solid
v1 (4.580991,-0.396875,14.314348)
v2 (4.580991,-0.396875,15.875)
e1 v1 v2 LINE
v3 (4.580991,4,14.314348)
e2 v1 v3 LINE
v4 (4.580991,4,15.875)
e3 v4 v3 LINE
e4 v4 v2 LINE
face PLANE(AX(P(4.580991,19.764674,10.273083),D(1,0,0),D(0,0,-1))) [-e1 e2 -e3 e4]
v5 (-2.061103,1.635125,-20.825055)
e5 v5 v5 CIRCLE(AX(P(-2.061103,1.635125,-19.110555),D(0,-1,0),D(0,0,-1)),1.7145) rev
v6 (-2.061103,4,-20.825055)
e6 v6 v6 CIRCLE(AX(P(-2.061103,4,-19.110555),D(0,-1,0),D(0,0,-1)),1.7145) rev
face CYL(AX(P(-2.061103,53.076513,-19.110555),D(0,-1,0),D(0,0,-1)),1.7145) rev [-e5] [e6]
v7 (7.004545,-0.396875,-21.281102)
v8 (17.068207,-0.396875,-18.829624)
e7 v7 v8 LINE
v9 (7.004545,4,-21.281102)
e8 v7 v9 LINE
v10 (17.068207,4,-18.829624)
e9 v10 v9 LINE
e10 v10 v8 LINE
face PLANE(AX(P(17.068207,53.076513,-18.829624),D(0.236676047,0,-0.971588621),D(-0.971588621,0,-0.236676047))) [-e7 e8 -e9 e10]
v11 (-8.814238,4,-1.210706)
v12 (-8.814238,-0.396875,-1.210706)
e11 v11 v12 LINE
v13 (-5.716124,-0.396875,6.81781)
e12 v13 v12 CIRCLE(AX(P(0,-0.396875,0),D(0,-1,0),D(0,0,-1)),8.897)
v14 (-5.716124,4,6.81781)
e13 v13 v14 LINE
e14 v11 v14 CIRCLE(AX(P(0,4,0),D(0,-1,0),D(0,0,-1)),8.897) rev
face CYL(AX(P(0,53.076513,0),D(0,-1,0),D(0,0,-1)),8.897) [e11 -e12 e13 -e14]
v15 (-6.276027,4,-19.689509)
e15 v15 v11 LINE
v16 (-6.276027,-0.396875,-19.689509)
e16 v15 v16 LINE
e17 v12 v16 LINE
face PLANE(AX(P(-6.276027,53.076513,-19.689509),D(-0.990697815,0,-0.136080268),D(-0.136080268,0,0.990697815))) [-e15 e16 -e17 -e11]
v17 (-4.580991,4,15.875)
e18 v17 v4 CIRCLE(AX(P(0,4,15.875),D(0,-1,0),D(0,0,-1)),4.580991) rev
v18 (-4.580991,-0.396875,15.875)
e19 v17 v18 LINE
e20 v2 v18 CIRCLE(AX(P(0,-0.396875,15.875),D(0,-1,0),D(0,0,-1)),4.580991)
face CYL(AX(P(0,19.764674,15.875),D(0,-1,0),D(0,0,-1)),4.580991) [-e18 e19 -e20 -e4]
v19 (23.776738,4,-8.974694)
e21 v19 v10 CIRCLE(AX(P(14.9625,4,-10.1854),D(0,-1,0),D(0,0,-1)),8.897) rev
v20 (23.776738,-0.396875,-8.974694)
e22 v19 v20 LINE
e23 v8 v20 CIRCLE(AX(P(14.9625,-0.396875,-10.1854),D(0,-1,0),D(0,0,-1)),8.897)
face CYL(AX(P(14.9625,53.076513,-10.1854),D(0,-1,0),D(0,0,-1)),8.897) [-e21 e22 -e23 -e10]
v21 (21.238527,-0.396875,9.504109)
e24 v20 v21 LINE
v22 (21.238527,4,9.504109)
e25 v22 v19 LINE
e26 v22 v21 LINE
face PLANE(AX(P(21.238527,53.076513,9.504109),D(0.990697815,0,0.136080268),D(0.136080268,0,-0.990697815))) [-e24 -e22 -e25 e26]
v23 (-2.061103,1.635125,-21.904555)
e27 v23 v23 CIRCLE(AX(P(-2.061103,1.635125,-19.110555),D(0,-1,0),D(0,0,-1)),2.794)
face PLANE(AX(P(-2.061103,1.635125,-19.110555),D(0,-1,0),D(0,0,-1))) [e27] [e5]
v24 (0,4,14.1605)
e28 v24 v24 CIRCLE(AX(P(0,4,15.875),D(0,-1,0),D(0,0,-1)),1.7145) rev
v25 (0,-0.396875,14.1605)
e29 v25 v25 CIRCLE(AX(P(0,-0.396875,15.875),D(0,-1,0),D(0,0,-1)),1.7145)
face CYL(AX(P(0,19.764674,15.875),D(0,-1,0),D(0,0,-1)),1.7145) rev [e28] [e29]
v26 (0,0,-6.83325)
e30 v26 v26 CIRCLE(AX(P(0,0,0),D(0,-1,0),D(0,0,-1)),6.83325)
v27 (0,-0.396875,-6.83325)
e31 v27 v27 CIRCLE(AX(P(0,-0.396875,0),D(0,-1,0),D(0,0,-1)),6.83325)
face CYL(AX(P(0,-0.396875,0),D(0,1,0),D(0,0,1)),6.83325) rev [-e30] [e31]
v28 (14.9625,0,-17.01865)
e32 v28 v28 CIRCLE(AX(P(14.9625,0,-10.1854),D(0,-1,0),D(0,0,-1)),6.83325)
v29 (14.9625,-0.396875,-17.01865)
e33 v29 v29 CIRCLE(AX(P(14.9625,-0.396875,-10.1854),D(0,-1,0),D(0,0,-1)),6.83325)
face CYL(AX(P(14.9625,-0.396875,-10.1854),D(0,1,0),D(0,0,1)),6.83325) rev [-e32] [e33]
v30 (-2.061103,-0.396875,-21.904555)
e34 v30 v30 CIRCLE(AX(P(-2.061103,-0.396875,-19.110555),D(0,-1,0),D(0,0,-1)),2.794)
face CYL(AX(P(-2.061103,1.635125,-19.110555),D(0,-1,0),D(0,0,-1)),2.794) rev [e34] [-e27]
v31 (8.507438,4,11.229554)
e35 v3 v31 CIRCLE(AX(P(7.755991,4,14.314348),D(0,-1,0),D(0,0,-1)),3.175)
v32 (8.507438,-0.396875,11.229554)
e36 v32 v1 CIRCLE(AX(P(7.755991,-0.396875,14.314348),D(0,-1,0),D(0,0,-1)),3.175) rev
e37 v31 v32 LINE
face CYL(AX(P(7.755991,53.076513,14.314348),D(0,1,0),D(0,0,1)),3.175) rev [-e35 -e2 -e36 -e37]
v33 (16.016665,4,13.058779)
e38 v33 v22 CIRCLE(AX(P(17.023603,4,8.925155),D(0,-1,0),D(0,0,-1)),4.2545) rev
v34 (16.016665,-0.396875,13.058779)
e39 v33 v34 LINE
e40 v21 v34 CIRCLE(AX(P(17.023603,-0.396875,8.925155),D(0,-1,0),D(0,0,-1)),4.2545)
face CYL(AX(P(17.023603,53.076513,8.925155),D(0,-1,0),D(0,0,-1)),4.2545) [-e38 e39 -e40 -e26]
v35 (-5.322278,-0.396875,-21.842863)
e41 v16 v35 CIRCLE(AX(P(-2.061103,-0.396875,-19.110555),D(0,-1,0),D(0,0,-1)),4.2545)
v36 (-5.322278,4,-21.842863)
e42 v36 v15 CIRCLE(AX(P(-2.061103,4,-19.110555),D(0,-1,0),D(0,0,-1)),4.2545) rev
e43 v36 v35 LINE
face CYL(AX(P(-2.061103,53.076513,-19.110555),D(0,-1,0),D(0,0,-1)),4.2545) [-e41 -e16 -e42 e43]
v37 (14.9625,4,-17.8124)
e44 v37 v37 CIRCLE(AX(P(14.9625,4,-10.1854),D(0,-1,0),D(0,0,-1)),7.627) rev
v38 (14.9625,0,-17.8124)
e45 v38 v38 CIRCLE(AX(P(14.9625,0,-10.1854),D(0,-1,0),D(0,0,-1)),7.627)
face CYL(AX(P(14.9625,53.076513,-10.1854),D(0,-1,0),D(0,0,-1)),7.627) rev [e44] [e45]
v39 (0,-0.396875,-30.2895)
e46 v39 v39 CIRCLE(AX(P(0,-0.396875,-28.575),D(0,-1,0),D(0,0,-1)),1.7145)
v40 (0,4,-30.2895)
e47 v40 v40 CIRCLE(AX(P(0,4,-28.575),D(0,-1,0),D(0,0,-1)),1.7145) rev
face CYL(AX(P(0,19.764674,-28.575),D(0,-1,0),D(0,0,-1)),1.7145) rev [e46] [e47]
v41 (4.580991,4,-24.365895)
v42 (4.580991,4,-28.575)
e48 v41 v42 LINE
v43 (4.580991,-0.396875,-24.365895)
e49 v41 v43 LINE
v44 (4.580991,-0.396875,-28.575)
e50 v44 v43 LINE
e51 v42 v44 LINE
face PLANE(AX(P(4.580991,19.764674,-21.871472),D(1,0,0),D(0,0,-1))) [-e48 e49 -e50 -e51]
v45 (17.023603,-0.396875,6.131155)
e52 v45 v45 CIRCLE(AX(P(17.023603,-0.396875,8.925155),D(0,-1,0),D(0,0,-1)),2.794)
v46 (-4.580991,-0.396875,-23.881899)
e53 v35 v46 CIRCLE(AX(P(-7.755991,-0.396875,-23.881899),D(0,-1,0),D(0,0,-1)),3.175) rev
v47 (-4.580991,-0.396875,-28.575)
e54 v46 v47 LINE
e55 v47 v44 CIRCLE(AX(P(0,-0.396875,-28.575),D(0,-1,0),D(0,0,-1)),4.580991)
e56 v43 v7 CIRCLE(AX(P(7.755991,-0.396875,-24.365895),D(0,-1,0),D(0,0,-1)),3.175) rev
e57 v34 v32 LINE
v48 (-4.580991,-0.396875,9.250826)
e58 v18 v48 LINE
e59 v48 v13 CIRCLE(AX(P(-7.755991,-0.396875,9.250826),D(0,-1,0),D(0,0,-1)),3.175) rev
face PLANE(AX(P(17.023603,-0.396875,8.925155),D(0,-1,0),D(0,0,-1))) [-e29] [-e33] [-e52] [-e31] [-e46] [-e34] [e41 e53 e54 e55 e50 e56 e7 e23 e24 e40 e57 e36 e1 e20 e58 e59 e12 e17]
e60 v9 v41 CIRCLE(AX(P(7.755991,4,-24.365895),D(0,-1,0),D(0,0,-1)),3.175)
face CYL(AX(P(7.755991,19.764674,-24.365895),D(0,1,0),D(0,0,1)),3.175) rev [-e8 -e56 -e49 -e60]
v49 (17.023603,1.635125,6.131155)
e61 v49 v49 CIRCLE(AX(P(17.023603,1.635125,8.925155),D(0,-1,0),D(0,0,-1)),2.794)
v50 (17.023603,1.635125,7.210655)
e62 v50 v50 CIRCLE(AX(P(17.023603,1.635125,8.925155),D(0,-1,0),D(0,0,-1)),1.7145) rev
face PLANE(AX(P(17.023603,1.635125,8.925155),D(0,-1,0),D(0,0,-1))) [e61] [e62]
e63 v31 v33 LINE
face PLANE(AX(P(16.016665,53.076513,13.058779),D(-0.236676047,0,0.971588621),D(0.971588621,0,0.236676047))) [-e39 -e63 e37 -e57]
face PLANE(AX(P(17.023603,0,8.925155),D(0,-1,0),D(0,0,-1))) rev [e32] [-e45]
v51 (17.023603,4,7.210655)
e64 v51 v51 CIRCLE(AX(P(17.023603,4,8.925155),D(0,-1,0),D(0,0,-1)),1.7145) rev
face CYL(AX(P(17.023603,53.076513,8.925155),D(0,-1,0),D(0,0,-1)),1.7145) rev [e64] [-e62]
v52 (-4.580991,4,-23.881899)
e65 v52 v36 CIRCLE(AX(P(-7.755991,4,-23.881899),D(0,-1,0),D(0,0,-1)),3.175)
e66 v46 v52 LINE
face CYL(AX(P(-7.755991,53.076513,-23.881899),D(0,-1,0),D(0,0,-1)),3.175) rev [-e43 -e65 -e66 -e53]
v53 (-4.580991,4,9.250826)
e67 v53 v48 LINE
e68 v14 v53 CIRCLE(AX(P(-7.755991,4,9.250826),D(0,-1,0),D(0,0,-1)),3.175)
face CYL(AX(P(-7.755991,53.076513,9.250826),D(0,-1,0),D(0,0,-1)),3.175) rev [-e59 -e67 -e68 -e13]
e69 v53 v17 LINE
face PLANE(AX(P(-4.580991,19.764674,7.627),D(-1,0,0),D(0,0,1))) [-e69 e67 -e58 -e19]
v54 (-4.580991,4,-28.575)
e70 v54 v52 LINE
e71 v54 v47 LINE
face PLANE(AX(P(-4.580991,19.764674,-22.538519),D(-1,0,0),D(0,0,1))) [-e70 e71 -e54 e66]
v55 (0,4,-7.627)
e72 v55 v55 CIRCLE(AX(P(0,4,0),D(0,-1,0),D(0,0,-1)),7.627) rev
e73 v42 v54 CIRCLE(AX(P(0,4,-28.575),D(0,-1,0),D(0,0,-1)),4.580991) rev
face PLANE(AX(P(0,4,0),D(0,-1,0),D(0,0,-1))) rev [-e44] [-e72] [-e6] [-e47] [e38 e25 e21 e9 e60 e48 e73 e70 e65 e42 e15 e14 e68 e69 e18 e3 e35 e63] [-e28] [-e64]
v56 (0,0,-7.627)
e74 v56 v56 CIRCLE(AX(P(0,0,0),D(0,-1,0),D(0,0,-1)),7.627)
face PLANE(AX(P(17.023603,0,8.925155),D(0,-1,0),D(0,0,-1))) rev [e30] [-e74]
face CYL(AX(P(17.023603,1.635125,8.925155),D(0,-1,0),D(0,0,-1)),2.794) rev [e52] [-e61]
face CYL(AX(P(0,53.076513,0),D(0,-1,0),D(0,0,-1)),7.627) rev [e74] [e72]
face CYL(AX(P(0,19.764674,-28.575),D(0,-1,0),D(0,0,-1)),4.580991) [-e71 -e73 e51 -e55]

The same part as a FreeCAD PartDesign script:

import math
import FreeCAD as App
import Part
import Sketcher
from FreeCAD import Vector
Q = App.Units.Quantity


def edges_at(feature, points):
    """Names of the edges that pass closest to the given points."""
    edges = feature.Shape.Edges
    near = lambda p: min(range(len(edges)), key=lambda i: edges[i].distToShape(Part.Vertex(*p))[0])
    return sorted({f"Edge{near(p) + 1}" for p in points})

doc = App.newDocument("Part")
body = doc.addObject("PartDesign::Body", "Body")

# Sketch on XZ plane
sketch1 = body.newObject("Sketcher::SketchObject", "Sketch")
sketch1.AttachmentSupport = (doc.getObject("XZ_Plane"), [""])
sketch1.MapMode = "FlatFace"
sketch1.addGeometry([
    Part.LineSegment(Vector(23.8, -9, 0), Vector(21.2, 9.5, 0)),  # 0
    Part.ArcOfCircle(Part.Circle(Vector(17, 8.9, 0), Vector(0, 0, 1), 4.3), math.radians(8), math.radians(104)),  # 1
    Part.LineSegment(Vector(16, 13.1, 0), Vector(-2.1, 8.6, 0)),  # 2
    Part.ArcOfCircle(Part.Circle(Vector(0, 0, 0), Vector(0, 0, 1), 8.9), math.radians(104), math.radians(188)),  # 3
    Part.LineSegment(Vector(-8.8, -1.2, 0), Vector(-6.3, -19.7, 0)),  # 4
    Part.ArcOfCircle(Part.Circle(Vector(-2.1, -19.1, 0), Vector(0, 0, 1), 4.3), math.radians(-172), math.radians(-76)),  # 5
    Part.LineSegment(Vector(-1.1, -23.2, 0), Vector(17.1, -18.8, 0)),  # 6
    Part.ArcOfCircle(Part.Circle(Vector(15, -10.2, 0), Vector(0, 0, 1), 8.9), math.radians(-76), math.radians(8)),  # 7
    Part.Circle(Vector(0, 0, 0), Vector(0, 0, 1), 7.6),  # 8
    Part.Circle(Vector(17, 8.9, 0), Vector(0, 0, 1), 1.7),  # 9
    Part.Circle(Vector(-2.1, -19.1, 0), Vector(0, 0, 1), 1.7),  # 10
    Part.Circle(Vector(15, -10.2, 0), Vector(0, 0, 1), 7.6),  # 11
], False)
sketch1.addConstraint([
    Sketcher.Constraint("Tangent", 0, 2, 1, 1),
    Sketcher.Constraint("Tangent", 1, 2, 2, 1),
    Sketcher.Constraint("Tangent", 2, 2, 3, 1),
    Sketcher.Constraint("Tangent", 3, 2, 4, 1),
    Sketcher.Constraint("Tangent", 4, 2, 5, 1),
    Sketcher.Constraint("Tangent", 5, 2, 6, 1),
    Sketcher.Constraint("Tangent", 6, 2, 7, 1),
    Sketcher.Constraint("Tangent", 7, 2, 0, 1),
    Sketcher.Constraint("Coincident", 3, 3, -1, 1),
    Sketcher.Constraint("Coincident", 8, 3, -1, 1),
    Sketcher.Constraint("Coincident", 9, 3, 1, 3),
    Sketcher.Constraint("Coincident", 10, 3, 5, 3),
    Sketcher.Constraint("Coincident", 11, 3, 7, 3),
    Sketcher.Constraint("Equal", 1, 5),
    Sketcher.Constraint("Equal", 3, 7),
    Sketcher.Constraint("Equal", 9, 10),
    Sketcher.Constraint("Equal", 8, 11),
    Sketcher.Constraint("Parallel", 0, 4),
    Sketcher.Constraint("Parallel", 2, 6),
    Sketcher.Constraint("Equal", 0, 2),
    Sketcher.Constraint("Diameter", 9, Q("0.135 in")),
    Sketcher.Constraint("Radius", 1, Q("0.1675 in")),
    Sketcher.Constraint("Diameter", 8, 15.254),
    Sketcher.Constraint("Radius", 3, 8.897),
    Sketcher.Constraint("DistanceY", 7, 3, -1, 1, Q("0.401 in")),
    Sketcher.Constraint("DistanceX", -1, 1, 7, 3, 14.9625),
    Sketcher.Constraint("Distance", 0, 18.65231),
])
pad1 = body.newObject("PartDesign::Pad", "Pad")
pad1.Profile = sketch1
pad1.Length = 4
pad1.Reversed = True

# Sketch on XZ plane
sketch2 = body.newObject("Sketcher::SketchObject", "Sketch001")
sketch2.AttachmentSupport = (doc.getObject("XZ_Plane"), [""])
sketch2.MapMode = "FlatFace"
sketch2.AttachmentOffset = App.Placement(Vector(0, 0, 0.015625 * 25.4), App.Rotation())
sketch2.addGeometry([
    Part.LineSegment(Vector(16, 13.1, 0), Vector(-2.1, 8.6, 0)),  # 0
    Part.ArcOfCircle(Part.Circle(Vector(0, 0, 0), Vector(0, 0, 1), 8.9), math.radians(104), math.radians(188)),  # 1
    Part.LineSegment(Vector(-8.8, -1.2, 0), Vector(-6.3, -19.7, 0)),  # 2
    Part.ArcOfCircle(Part.Circle(Vector(-2.1, -19.1, 0), Vector(0, 0, 1), 4.3), math.radians(-172), math.radians(-76)),  # 3
    Part.LineSegment(Vector(-1.1, -23.2, 0), Vector(17.1, -18.8, 0)),  # 4
    Part.ArcOfCircle(Part.Circle(Vector(15, -10.2, 0), Vector(0, 0, 1), 8.9), math.radians(-76), math.radians(8)),  # 5
    Part.LineSegment(Vector(23.8, -9, 0), Vector(21.2, 9.5, 0)),  # 6
    Part.ArcOfCircle(Part.Circle(Vector(17, 8.9, 0), Vector(0, 0, 1), 4.3), math.radians(8), math.radians(104)),  # 7
    Part.Circle(Vector(15, -10.2, 0), Vector(0, 0, 1), 6.8),  # 8
    Part.Circle(Vector(0, 0, 0), Vector(0, 0, 1), 6.8),  # 9
], False)
sketch2.addConstraint([
    Sketcher.Constraint("Tangent", 0, 2, 1, 1),
    Sketcher.Constraint("Tangent", 1, 2, 2, 1),
    Sketcher.Constraint("Tangent", 2, 2, 3, 1),
    Sketcher.Constraint("Tangent", 3, 2, 4, 1),
    Sketcher.Constraint("Tangent", 4, 2, 5, 1),
    Sketcher.Constraint("Tangent", 5, 2, 6, 1),
    Sketcher.Constraint("Tangent", 6, 2, 7, 1),
    Sketcher.Constraint("Tangent", 7, 2, 0, 1),
    Sketcher.Constraint("Coincident", 1, 3, -1, 1),
    Sketcher.Constraint("Coincident", 9, 3, -1, 1),
    Sketcher.Constraint("Coincident", 8, 3, 5, 3),
    Sketcher.Constraint("Equal", 1, 5),
    Sketcher.Constraint("Equal", 3, 7),
    Sketcher.Constraint("Equal", 8, 9),
    Sketcher.Constraint("Parallel", 0, 4),
    Sketcher.Constraint("Parallel", 2, 6),
    Sketcher.Constraint("Equal", 0, 2),
    Sketcher.Constraint("Radius", 3, Q("0.1675 in")),
    Sketcher.Constraint("Diameter", 8, 13.6665),
    Sketcher.Constraint("Radius", 1, 8.897),
    Sketcher.Constraint("DistanceY", 5, 3, -1, 1, Q("0.401 in")),
    Sketcher.Constraint("DistanceX", -1, 1, 5, 3, 14.9625),
    Sketcher.Constraint("Distance", 0, 18.65231),
])
pad2 = body.newObject("PartDesign::Pad", "Pad001")
pad2.Profile = sketch2
pad2.Length = Q("0.015625 in")
pad2.Reversed = True

# Sketch on XZ plane
sketch3 = body.newObject("Sketcher::SketchObject", "Sketch002")
sketch3.AttachmentSupport = (doc.getObject("XZ_Plane"), [""])
sketch3.MapMode = "FlatFace"
sketch3.AttachmentOffset = App.Placement(Vector(0, 0, 0.015625 * 25.4), App.Rotation())
sketch3.addGeometry([
    Part.Circle(Vector(17, 8.9, 0), Vector(0, 0, 1), 2.8),
    Part.Circle(Vector(-2.1, -19.1, 0), Vector(0, 0, 1), 2.8),
], False)
sketch3.addConstraint([
    Sketcher.Constraint("Equal", 0, 1),
    Sketcher.Constraint("Diameter", 0, Q("0.22 in")),
    Sketcher.Constraint("DistanceY", 1, 3, 0, 3, 28.03571),
    Sketcher.Constraint("DistanceX", -1, 1, 0, 3, 17.023603),
    Sketcher.Constraint("DistanceY", -1, 1, 0, 3, 8.925155),
    Sketcher.Constraint("DistanceX", 1, 3, -1, 1, 2.061103),
])
pocket1 = body.newObject("PartDesign::Pocket", "Pocket")
pocket1.Profile = sketch3
pocket1.Length = Q("0.08 in")

# Sketch on XZ plane
sketch4 = body.newObject("Sketcher::SketchObject", "Sketch003")
sketch4.AttachmentSupport = (doc.getObject("XZ_Plane"), [""])
sketch4.MapMode = "FlatFace"
sketch4.AttachmentOffset = App.Placement(Vector(0, 0, 0.015625 * 25.4), App.Rotation())
sketch4.addGeometry([
    Part.LineSegment(Vector(-4.6, 15.9, 0), Vector(-4.6, 7.6, 0)),  # 0
    Part.ArcOfCircle(Part.Circle(Vector(0, 0, 0), Vector(0, 0, 1), 8.9), math.radians(103.69), math.radians(120.99)),  # 1
    Part.LineSegment(Vector(-2.1, 8.6, 0), Vector(4.6, 10.3, 0)),  # 2
    Part.LineSegment(Vector(4.6, 10.3, 0), Vector(4.6, 15.9, 0)),  # 3
    Part.ArcOfCircle(Part.Circle(Vector(0, 15.9, 0), Vector(0, 0, 1), 4.6), math.radians(0), math.radians(180)),  # 4
    Part.Circle(Vector(0, 15.9, 0), Vector(0, 0, 1), 1.7),  # 5
    Part.LineSegment(Vector(-4.6, -22.5, 0), Vector(-4.6, -28.6, 0)),  # 6
    Part.ArcOfCircle(Part.Circle(Vector(0, -28.6, 0), Vector(0, 0, 1), 4.6), math.radians(180), math.radians(360)),  # 7
    Part.LineSegment(Vector(4.6, -28.6, 0), Vector(4.6, -21.9, 0)),  # 8
    Part.LineSegment(Vector(4.6, -21.9, 0), Vector(-1.1, -23.2, 0)),  # 9
    Part.ArcOfCircle(Part.Circle(Vector(-2.1, -19.1, 0), Vector(0, 0, 1), 4.3), math.radians(-126), math.radians(-76)),  # 10
    Part.Circle(Vector(0, -28.6, 0), Vector(0, 0, 1), 1.7),  # 11
], False)
sketch4.addConstraint([
    Sketcher.Constraint("Coincident", 0, 2, 1, 2),
    Sketcher.Constraint("Tangent", 1, 1, 2, 1),
    Sketcher.Constraint("Coincident", 2, 2, 3, 1),
    Sketcher.Constraint("Tangent", 3, 2, 4, 1),
    Sketcher.Constraint("Tangent", 4, 2, 0, 1),
    Sketcher.Constraint("Tangent", 6, 2, 7, 1),
    Sketcher.Constraint("Tangent", 7, 2, 8, 1),
    Sketcher.Constraint("Coincident", 8, 2, 9, 1),
    Sketcher.Constraint("Tangent", 9, 2, 10, 2),
    Sketcher.Constraint("Coincident", 10, 1, 6, 1),
    Sketcher.Constraint("Vertical", 0),
    Sketcher.Constraint("Vertical", 3),
    Sketcher.Constraint("Vertical", 6),
    Sketcher.Constraint("Vertical", 8),
    Sketcher.Constraint("Coincident", 1, 3, -1, 1),
    Sketcher.Constraint("Coincident", 5, 3, 4, 3),
    Sketcher.Constraint("Coincident", 11, 3, 7, 3),
    Sketcher.Constraint("Equal", 4, 7),
    Sketcher.Constraint("Equal", 5, 11),
    Sketcher.Constraint("PointOnObject", 4, 3, -2),
    Sketcher.Constraint("PointOnObject", 7, 3, -2),
    Sketcher.Constraint("Parallel", 2, 9),
    Sketcher.Constraint("Diameter", 5, Q("0.135 in")),
    Sketcher.Constraint("Radius", 10, Q("0.1675 in")),
    Sketcher.Constraint("Radius", 1, 8.897),
    Sketcher.Constraint("DistanceY", 7, 3, 4, 3, Q("1.75 in")),
    Sketcher.Constraint("DistanceY", -1, 1, 4, 3, Q("0.625 in")),
    Sketcher.Constraint("Radius", 4, 4.580991),
    Sketcher.Constraint("DistanceY", 6, 2, 6, 1, 6.036481),
    Sketcher.Constraint("DistanceY", 8, 1, 8, 2, 6.703528),
    Sketcher.Constraint("Distance", 2, 6.882232),
])
pad3 = body.newObject("PartDesign::Pad", "Pad002")
pad3.Profile = sketch4
pad3.Length = 4.396875
pad3.Reversed = True
doc.recompute()

fillet = body.newObject("PartDesign::Fillet", "Fillet")
fillet.Base = (pad3, edges_at(pad3, [
    (4.581, 1.802, 10.273),
    (-4.581, 1.802, 7.627),
    (4.581, 1.802, -21.871),
    (-4.581, 1.802, -22.539),
]))
fillet.Radius = Q("0.125 in")

doc.recompute()
